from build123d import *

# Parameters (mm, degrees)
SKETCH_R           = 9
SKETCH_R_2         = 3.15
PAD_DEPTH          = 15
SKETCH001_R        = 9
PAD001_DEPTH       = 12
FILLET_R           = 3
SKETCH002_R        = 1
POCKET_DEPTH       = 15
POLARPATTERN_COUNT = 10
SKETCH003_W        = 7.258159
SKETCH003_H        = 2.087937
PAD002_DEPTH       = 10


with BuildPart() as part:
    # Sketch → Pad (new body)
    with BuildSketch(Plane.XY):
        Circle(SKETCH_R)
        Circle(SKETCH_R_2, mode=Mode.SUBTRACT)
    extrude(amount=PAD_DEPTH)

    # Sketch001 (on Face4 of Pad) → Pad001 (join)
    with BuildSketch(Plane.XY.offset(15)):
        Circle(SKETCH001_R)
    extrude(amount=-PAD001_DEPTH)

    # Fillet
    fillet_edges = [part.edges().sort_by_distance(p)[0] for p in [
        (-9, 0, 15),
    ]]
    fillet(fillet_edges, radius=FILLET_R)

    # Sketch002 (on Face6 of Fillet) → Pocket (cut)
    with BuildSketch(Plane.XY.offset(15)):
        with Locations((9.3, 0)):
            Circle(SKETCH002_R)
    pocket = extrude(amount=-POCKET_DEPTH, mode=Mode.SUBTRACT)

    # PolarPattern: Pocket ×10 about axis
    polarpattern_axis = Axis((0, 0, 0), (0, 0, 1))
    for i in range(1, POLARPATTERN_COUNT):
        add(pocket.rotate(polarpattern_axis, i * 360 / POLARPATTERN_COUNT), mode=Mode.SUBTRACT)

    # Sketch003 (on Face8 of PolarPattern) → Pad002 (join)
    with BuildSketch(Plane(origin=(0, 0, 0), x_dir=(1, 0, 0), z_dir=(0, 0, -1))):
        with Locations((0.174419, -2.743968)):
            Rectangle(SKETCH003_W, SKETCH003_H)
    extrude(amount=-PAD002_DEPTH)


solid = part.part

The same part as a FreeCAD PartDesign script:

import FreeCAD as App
import Part
import Sketcher

V = App.Vector


def edges_at(feature, points):
    """Names of the edges that pass closest to the given points."""
    edges = feature.Shape.Edges
    near = lambda p: min(range(len(edges)), key=lambda i: edges[i].distToShape(Part.Vertex(*p))[0])
    return sorted({f"Edge{near(p) + 1}" for p in points})

doc = App.newDocument("Part")
body = doc.addObject("PartDesign::Body", "Body")

# Sketch on XY plane
sketch1 = body.newObject("Sketcher::SketchObject", "Sketch")
sketch1.AttachmentSupport = (doc.getObject("XY_Plane"), [""])
sketch1.MapMode = "FlatFace"
sketch1.addGeometry(Part.Circle(V(0, 0, 0), V(0, 0, 1), 9), False)
sketch1.addGeometry(Part.Circle(V(0, 0, 0), V(0, 0, 1), 3.1), False)
sketch1.addConstraint(Sketcher.Constraint("Coincident", 0, 3, -1, 1))
sketch1.addConstraint(Sketcher.Constraint("Coincident", 1, 3, -1, 1))
sketch1.addConstraint(Sketcher.Constraint("Diameter", 0, 18.0))
sketch1.addConstraint(Sketcher.Constraint("Diameter", 1, 6.3))
pad1 = body.newObject("PartDesign::Pad", "Pad")
pad1.Profile = sketch1
pad1.Length = 15

# Sketch on XY plane
sketch2 = body.newObject("Sketcher::SketchObject", "Sketch001")
sketch2.AttachmentSupport = (doc.getObject("XY_Plane"), [""])
sketch2.MapMode = "FlatFace"
sketch2.AttachmentOffset = App.Placement(V(0, 0, 15), App.Rotation())
sketch2.addGeometry(Part.Circle(V(0, 0, 0), V(0, 0, 1), 9), False)
sketch2.addConstraint(Sketcher.Constraint("Coincident", 0, 3, -1, 1))
sketch2.addConstraint(Sketcher.Constraint("Diameter", 0, 18.0))
pad2 = body.newObject("PartDesign::Pad", "Pad001")
pad2.Profile = sketch2
pad2.Length = 12
pad2.Reversed = True
doc.recompute()

fillet = body.newObject("PartDesign::Fillet", "Fillet")
fillet.Base = (pad2, edges_at(pad2, [(-9, 0, 15)]))
fillet.Radius = 3

# Sketch on XY plane
sketch3 = body.newObject("Sketcher::SketchObject", "Sketch002")
sketch3.AttachmentSupport = (doc.getObject("XY_Plane"), [""])
sketch3.MapMode = "FlatFace"
sketch3.AttachmentOffset = App.Placement(V(0, 0, 15), App.Rotation())
sketch3.addGeometry(Part.Circle(V(9.3, 0, 0), V(0, 0, 1), 1), False)
sketch3.addConstraint(Sketcher.Constraint("PointOnObject", 0, 3, -1))
sketch3.addConstraint(Sketcher.Constraint("Diameter", 0, 2.0))
sketch3.addConstraint(Sketcher.Constraint("DistanceX", -1, 1, 0, 3, 9.3))
pocket1 = body.newObject("PartDesign::Pocket", "Pocket")
pocket1.Profile = sketch3
pocket1.Length = 15
doc.recompute()

polarpattern = body.newObject("PartDesign::PolarPattern", "PolarPattern")
polarpattern.Originals = [pocket1]
polarpattern.Axis = (doc.getObject("Z_Axis"), [""])
polarpattern.Angle = 360
polarpattern.Occurrences = 10
body.Tip = polarpattern

# Sketch on XY plane
sketch4 = body.newObject("Sketcher::SketchObject", "Sketch003")
sketch4.AttachmentSupport = (doc.getObject("XY_Plane"), [""])
sketch4.MapMode = "FlatFace"
sketch4.addGeometry(Part.LineSegment(V(-3.5, 1.7, 0), V(-3.5, 3.8, 0)), False)
sketch4.addGeometry(Part.LineSegment(V(-3.5, 3.8, 0), V(3.8, 3.8, 0)), False)
sketch4.addGeometry(Part.LineSegment(V(3.8, 3.8, 0), V(3.8, 1.7, 0)), False)
sketch4.addGeometry(Part.LineSegment(V(3.8, 1.7, 0), V(-3.5, 1.7, 0)), False)
sketch4.addConstraint(Sketcher.Constraint("Coincident", 0, 2, 1, 1))
sketch4.addConstraint(Sketcher.Constraint("Coincident", 1, 2, 2, 1))
sketch4.addConstraint(Sketcher.Constraint("Coincident", 2, 2, 3, 1))
sketch4.addConstraint(Sketcher.Constraint("Coincident", 3, 2, 0, 1))
sketch4.addConstraint(Sketcher.Constraint("Vertical", 0))
sketch4.addConstraint(Sketcher.Constraint("Horizontal", 1))
sketch4.addConstraint(Sketcher.Constraint("Vertical", 2))
sketch4.addConstraint(Sketcher.Constraint("Horizontal", 3))
sketch4.addConstraint(Sketcher.Constraint("DistanceY", -1, 1, 2, 2, 1.7))
sketch4.addConstraint(Sketcher.Constraint("DistanceX", 1, 1, 1, 2, 7.258159))
sketch4.addConstraint(Sketcher.Constraint("DistanceX", -1, 1, 1, 2, 3.803498))
sketch4.addConstraint(Sketcher.Constraint("DistanceY", 0, 1, 0, 2, 2.087937))
pad3 = body.newObject("PartDesign::Pad", "Pad002")
pad3.Profile = sketch4
pad3.Length = 10

doc.recompute()
